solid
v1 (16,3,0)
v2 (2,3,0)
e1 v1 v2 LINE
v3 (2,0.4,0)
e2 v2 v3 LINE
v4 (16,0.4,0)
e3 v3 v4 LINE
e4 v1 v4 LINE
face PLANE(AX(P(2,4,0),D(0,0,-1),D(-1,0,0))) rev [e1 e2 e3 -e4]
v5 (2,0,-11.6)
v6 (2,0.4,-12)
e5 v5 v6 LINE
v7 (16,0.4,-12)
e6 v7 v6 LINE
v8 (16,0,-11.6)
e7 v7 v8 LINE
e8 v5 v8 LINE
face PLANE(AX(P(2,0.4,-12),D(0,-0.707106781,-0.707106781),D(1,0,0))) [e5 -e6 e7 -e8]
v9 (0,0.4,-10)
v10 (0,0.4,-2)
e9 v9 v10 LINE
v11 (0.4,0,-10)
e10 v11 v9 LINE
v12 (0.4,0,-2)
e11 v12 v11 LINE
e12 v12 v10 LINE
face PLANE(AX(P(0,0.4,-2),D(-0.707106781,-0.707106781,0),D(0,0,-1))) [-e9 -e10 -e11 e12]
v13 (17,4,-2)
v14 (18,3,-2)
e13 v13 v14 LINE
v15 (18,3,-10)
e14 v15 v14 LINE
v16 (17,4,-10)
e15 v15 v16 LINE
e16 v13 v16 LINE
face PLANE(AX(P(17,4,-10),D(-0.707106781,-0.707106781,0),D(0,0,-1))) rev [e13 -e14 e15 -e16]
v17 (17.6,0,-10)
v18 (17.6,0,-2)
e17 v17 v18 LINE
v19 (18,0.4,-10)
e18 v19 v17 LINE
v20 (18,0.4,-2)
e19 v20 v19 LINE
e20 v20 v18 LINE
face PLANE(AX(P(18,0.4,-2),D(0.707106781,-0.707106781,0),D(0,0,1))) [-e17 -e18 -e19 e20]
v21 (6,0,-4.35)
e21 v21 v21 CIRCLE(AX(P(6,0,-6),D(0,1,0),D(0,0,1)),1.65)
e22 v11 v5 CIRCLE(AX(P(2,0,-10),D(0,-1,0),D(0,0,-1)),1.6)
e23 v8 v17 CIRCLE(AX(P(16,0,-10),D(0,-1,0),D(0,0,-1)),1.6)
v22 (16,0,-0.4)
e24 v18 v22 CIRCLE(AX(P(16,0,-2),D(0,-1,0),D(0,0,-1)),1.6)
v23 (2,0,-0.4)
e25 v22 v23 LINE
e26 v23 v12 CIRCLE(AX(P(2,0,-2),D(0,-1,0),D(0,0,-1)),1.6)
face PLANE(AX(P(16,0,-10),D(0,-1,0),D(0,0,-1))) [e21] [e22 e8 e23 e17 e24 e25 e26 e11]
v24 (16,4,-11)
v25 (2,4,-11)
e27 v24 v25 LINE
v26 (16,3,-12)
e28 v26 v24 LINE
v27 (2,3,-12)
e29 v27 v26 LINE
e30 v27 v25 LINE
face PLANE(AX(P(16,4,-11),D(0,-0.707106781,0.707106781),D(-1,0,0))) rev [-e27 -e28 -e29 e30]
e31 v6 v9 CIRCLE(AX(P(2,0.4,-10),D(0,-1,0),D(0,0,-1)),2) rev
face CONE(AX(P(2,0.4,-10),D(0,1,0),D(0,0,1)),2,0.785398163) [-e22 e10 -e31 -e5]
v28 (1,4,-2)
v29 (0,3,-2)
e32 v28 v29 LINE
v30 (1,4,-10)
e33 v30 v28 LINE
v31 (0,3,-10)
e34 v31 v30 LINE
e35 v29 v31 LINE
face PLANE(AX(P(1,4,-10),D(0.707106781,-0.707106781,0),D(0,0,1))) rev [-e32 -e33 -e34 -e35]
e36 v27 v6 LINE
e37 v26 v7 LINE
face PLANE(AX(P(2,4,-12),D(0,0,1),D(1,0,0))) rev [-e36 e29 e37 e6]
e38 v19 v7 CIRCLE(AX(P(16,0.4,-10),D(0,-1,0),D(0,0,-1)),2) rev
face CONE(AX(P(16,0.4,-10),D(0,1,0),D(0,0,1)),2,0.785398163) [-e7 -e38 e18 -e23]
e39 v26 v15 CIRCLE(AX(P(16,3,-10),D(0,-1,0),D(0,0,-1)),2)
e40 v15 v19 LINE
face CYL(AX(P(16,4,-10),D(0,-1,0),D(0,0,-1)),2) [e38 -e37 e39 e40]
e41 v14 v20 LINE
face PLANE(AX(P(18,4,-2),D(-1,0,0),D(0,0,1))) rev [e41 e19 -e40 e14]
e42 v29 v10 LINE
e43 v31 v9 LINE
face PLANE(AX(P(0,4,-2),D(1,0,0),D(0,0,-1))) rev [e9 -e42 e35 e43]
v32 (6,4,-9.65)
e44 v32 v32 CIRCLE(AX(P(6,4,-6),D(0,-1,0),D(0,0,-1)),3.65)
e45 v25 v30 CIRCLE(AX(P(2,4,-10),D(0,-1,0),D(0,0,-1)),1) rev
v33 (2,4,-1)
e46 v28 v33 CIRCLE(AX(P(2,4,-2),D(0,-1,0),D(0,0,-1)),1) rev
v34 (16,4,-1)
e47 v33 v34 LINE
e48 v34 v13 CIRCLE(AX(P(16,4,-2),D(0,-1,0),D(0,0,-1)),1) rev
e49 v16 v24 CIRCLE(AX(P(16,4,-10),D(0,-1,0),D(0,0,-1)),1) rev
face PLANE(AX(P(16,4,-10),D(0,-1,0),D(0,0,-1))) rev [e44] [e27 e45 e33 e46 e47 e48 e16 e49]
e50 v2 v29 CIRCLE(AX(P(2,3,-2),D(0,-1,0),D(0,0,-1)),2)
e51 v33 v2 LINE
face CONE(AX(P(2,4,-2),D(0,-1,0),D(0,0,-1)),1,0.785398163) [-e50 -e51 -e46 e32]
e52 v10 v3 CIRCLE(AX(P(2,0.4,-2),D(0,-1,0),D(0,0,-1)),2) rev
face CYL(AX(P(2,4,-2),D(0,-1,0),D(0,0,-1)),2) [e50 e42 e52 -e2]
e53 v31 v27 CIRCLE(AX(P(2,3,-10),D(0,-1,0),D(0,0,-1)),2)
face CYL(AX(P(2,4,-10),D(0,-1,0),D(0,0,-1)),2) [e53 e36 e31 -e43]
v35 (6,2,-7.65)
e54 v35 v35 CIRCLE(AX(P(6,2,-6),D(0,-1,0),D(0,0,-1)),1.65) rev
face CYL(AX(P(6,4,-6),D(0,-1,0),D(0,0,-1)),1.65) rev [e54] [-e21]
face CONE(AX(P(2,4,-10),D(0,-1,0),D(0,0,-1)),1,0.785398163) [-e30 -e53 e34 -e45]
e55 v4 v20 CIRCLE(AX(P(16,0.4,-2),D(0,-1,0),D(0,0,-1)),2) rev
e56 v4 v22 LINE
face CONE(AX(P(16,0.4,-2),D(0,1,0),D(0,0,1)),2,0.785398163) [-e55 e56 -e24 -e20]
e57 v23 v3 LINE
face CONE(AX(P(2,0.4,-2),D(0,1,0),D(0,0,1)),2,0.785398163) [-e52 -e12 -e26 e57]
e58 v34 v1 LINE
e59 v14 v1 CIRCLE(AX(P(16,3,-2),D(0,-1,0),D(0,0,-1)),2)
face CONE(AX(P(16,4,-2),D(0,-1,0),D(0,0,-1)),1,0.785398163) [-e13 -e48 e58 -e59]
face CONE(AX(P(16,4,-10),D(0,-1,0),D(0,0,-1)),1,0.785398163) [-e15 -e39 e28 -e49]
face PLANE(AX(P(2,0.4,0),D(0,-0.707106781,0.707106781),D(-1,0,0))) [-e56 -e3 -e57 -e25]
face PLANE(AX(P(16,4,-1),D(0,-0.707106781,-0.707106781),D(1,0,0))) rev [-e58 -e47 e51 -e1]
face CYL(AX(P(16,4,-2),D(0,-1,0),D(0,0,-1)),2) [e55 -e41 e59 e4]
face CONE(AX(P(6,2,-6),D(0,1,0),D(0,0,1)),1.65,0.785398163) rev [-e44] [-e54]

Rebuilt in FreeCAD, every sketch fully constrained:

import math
import FreeCAD as App
import Part
import Sketcher
from FreeCAD import Vector


def edges_at(feature, points):
    """Names of the edges that pass closest to the given points."""
    edges = feature.Shape.Edges
    near = lambda p: min(range(len(edges)), key=lambda i: edges[i].distToShape(Part.Vertex(*p))[0])
    return sorted({f"Edge{near(p) + 1}" for p in points})

doc = App.newDocument("Part")
body = doc.addObject("PartDesign::Body", "Body")

# Sketch on XZ plane
sketch1 = body.newObject("Sketcher::SketchObject", "Sketch")
sketch1.AttachmentSupport = (doc.getObject("XZ_Plane"), [""])
sketch1.MapMode = "FlatFace"
sketch1.addGeometry([
    Part.LineSegment(Vector(2, 0, 0), Vector(16, 0, 0)),  # 0
    Part.ArcOfCircle(Part.Circle(Vector(16, -2, 0), Vector(0, 0, 1), 2), math.radians(0), math.radians(90)),  # 1
    Part.LineSegment(Vector(18, -2, 0), Vector(18, -10, 0)),  # 2
    Part.ArcOfCircle(Part.Circle(Vector(16, -10, 0), Vector(0, 0, 1), 2), math.radians(-90), math.radians(0)),  # 3
    Part.LineSegment(Vector(16, -12, 0), Vector(2, -12, 0)),  # 4
    Part.ArcOfCircle(Part.Circle(Vector(2, -10, 0), Vector(0, 0, 1), 2), math.radians(-180), math.radians(-90)),  # 5
    Part.LineSegment(Vector(0, -10, 0), Vector(0, -2, 0)),  # 6
    Part.ArcOfCircle(Part.Circle(Vector(2, -2, 0), Vector(0, 0, 1), 2), math.radians(90), math.radians(180)),  # 7
    Part.Circle(Vector(6, -6, 0), Vector(0, 0, 1), 1.6),  # 8
], False)
sketch1.addConstraint([
    Sketcher.Constraint("Tangent", 0, 2, 1, 2),
    Sketcher.Constraint("Tangent", 1, 1, 2, 1),
    Sketcher.Constraint("Tangent", 2, 2, 3, 2),
    Sketcher.Constraint("Tangent", 3, 1, 4, 1),
    Sketcher.Constraint("Tangent", 4, 2, 5, 2),
    Sketcher.Constraint("Tangent", 5, 1, 6, 1),
    Sketcher.Constraint("Tangent", 6, 2, 7, 2),
    Sketcher.Constraint("Tangent", 7, 1, 0, 1),
    Sketcher.Constraint("Horizontal", 0),
    Sketcher.Constraint("Vertical", 2),
    Sketcher.Constraint("Horizontal", 4),
    Sketcher.Constraint("Vertical", 6),
    Sketcher.Constraint("Equal", 1, 3),
    Sketcher.Constraint("Equal", 3, 5),
    Sketcher.Constraint("Equal", 5, 7),
    Sketcher.Constraint("PointOnObject", 0, 2, -1),
    Sketcher.Constraint("PointOnObject", 5, 1, -2),
    Sketcher.Constraint("Radius", 1, 2.0),
    Sketcher.Constraint("Diameter", 8, 3.3),
    Sketcher.Constraint("DistanceX", 0, 1, 0, 2, 14.0),
    Sketcher.Constraint("DistanceY", 2, 2, 2, 1, 8.0),
    Sketcher.Constraint("DistanceX", -1, 1, 8, 3, 6.0),
    Sketcher.Constraint("DistanceY", 8, 3, -1, 1, 6.0),
])
pad1 = body.newObject("PartDesign::Pad", "Pad")
pad1.Profile = sketch1
pad1.Length = 4
pad1.Reversed = True
doc.recompute()

chamfer = body.newObject("PartDesign::Chamfer", "Chamfer")
chamfer.Base = (pad1, edges_at(pad1, [(6, 4, -7.65)]))
chamfer.Size = 2
doc.recompute()

chamfer2 = body.newObject("PartDesign::Chamfer", "Chamfer001")
chamfer2.Base = (chamfer, edges_at(chamfer, [
    (0.586, 4, -11.414),
    (0, 4, -6),
    (0.586, 4, -0.586),
    (9, 4, 0),
    (17.414, 4, -0.586),
    (18, 4, -6),
    (17.414, 4, -11.414),
    (9, 4, -12),
]))
chamfer2.Size = 1
doc.recompute()

chamfer3 = body.newObject("PartDesign::Chamfer", "Chamfer002")
chamfer3.Base = (chamfer2, edges_at(chamfer2, [
    (0, 0, -6),
    (0.586, 0, -11.414),
    (9, 0, -12),
    (17.414, 0, -11.414),
    (18, 0, -6),
    (17.414, 0, -0.586),
    (9, 0, 0),
    (0.586, 0, -0.586),
]))
chamfer3.Size = 0.4

doc.recompute()
